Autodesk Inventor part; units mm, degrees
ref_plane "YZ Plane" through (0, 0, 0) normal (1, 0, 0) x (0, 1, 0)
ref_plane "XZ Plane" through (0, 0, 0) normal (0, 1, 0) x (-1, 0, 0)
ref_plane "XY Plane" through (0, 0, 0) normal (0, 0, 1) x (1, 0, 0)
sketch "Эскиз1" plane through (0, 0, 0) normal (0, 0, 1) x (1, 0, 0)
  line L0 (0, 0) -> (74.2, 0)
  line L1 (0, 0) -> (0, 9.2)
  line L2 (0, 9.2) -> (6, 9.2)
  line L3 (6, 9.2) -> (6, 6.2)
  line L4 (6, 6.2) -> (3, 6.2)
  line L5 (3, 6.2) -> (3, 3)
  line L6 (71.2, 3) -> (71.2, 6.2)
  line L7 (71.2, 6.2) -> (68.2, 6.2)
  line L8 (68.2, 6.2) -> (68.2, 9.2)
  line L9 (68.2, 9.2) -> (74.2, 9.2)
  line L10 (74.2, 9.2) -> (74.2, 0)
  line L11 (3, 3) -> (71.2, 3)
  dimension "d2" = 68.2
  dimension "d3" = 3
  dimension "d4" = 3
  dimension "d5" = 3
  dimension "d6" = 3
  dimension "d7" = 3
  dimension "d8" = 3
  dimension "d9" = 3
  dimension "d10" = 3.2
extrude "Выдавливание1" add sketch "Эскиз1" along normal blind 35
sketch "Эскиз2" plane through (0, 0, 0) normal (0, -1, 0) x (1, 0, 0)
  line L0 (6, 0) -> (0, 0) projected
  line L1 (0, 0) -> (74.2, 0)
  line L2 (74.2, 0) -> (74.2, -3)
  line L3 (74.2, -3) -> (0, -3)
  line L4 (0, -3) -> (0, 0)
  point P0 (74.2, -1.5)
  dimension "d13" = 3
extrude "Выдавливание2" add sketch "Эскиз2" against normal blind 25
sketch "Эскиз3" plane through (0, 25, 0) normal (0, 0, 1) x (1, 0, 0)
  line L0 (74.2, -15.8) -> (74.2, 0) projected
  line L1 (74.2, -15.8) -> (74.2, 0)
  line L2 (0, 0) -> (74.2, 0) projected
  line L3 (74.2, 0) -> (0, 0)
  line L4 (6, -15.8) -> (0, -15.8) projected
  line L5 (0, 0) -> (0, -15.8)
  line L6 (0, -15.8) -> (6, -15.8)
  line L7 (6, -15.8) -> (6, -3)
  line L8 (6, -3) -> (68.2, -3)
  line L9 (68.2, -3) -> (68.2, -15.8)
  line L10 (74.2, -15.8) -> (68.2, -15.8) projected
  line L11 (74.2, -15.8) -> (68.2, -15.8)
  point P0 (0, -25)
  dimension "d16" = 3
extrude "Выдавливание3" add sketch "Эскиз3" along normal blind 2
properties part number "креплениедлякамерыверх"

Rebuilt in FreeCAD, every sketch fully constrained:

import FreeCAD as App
import Part
import Sketcher

V = App.Vector

doc = App.newDocument("Part")
body = doc.addObject("PartDesign::Body", "Body")

sketch1 = body.newObject("Sketcher::SketchObject", "Sketch")
sketch1.AttachmentSupport = (doc.getObject("XY_Plane"), [""])
sketch1.MapMode = "FlatFace"
sketch1.addGeometry([
    Part.LineSegment(V(0, 9.2, 0), V(0, 0, 0)),
    Part.LineSegment(V(0, 0, 0), V(74.2, 0, 0)),
    Part.LineSegment(V(74.2, 0, 0), V(74.2, 9.2, 0)),
    Part.LineSegment(V(74.2, 9.2, 0), V(68.2, 9.2, 0)),
    Part.LineSegment(V(68.2, 9.2, 0), V(68.2, 6.2, 0)),
    Part.LineSegment(V(68.2, 6.2, 0), V(71.2, 6.2, 0)),
    Part.LineSegment(V(71.2, 6.2, 0), V(71.2, 3, 0)),
    Part.LineSegment(V(71.2, 3, 0), V(3, 3, 0)),
    Part.LineSegment(V(3, 3, 0), V(3, 6.2, 0)),
    Part.LineSegment(V(3, 6.2, 0), V(6, 6.2, 0)),
    Part.LineSegment(V(6, 6.2, 0), V(6, 9.2, 0)),
    Part.LineSegment(V(6, 9.2, 0), V(0, 9.2, 0)),
], False)
sketch1.addConstraint([
    Sketcher.Constraint("Coincident", 0, 2, 1, 1),
    Sketcher.Constraint("Coincident", 1, 2, 2, 1),
    Sketcher.Constraint("Coincident", 2, 2, 3, 1),
    Sketcher.Constraint("Coincident", 3, 2, 4, 1),
    Sketcher.Constraint("Coincident", 4, 2, 5, 1),
    Sketcher.Constraint("Coincident", 5, 2, 6, 1),
    Sketcher.Constraint("Coincident", 6, 2, 7, 1),
    Sketcher.Constraint("Coincident", 7, 2, 8, 1),
    Sketcher.Constraint("Coincident", 8, 2, 9, 1),
    Sketcher.Constraint("Coincident", 9, 2, 10, 1),
    Sketcher.Constraint("Coincident", 10, 2, 11, 1),
    Sketcher.Constraint("Coincident", 11, 2, 0, 1),
    Sketcher.Constraint("Vertical", 0),
    Sketcher.Constraint("Horizontal", 1),
    Sketcher.Constraint("Vertical", 2),
    Sketcher.Constraint("Horizontal", 3),
    Sketcher.Constraint("Vertical", 4),
    Sketcher.Constraint("Horizontal", 5),
    Sketcher.Constraint("Vertical", 6),
    Sketcher.Constraint("Horizontal", 7),
    Sketcher.Constraint("Vertical", 8),
    Sketcher.Constraint("Horizontal", 9),
    Sketcher.Constraint("Vertical", 10),
    Sketcher.Constraint("Horizontal", 11),
    Sketcher.Constraint("Coincident", 0, 2, -1, 1),
    Sketcher.Constraint("Horizontal", 5, 2, 8, 2),
    Sketcher.Constraint("Horizontal", 3, 2, 10, 2),
    Sketcher.Constraint("Equal", 5, 9),
    Sketcher.Constraint("Equal", 3, 11),
    Sketcher.Constraint("Equal", 9, 4),
    Sketcher.Constraint("DistanceX", 5, 1, 5, 2, 3.0),
    Sketcher.Constraint("DistanceX", 7, 2, 7, 1, 68.2),
    Sketcher.Constraint("DistanceY", 6, 2, 6, 1, 3.2),
    Sketcher.Constraint("DistanceY", -1, 1, 6, 2, 3.0),
    Sketcher.Constraint("DistanceX", -1, 1, 7, 2, 3.0),
])
pad1 = body.newObject("PartDesign::Pad", "Pad")
pad1.Profile = sketch1
pad1.Length = 35

sketch2 = body.newObject("Sketcher::SketchObject", "Sketch001")
sketch2.AttachmentSupport = (doc.getObject("XZ_Plane"), [""])
sketch2.MapMode = "FlatFace"
sketch2.addGeometry([
    Part.LineSegment(V(74.2, 0, 0), V(0, 0, 0)),
    Part.LineSegment(V(0, 0, 0), V(0, -3, 0)),
    Part.LineSegment(V(0, -3, 0), V(74.2, -3, 0)),
    Part.LineSegment(V(74.2, -3, 0), V(74.2, 0, 0)),
], False)
sketch2.addConstraint([
    Sketcher.Constraint("Coincident", 0, 2, 1, 1),
    Sketcher.Constraint("Coincident", 1, 2, 2, 1),
    Sketcher.Constraint("Coincident", 2, 2, 3, 1),
    Sketcher.Constraint("Coincident", 3, 2, 0, 1),
    Sketcher.Constraint("Horizontal", 0),
    Sketcher.Constraint("Vertical", 1),
    Sketcher.Constraint("Horizontal", 2),
    Sketcher.Constraint("Vertical", 3),
    Sketcher.Constraint("Coincident", 0, 2, -1, 1),
    Sketcher.Constraint("DistanceY", 1, 2, 1, 1, 3.0),
    Sketcher.Constraint("DistanceX", 0, 2, 0, 1, 74.2),
])
pad2 = body.newObject("PartDesign::Pad", "Pad001")
pad2.Profile = sketch2
pad2.Length = 25
pad2.Reversed = True

sketch3 = body.newObject("Sketcher::SketchObject", "Sketch002")
sketch3.AttachmentSupport = (doc.getObject("XY_Plane"), [""])
sketch3.MapMode = "FlatFace"
sketch3.addGeometry([
    Part.LineSegment(V(68, 9, 0), V(74, 9, 0)),
    Part.LineSegment(V(74, 9, 0), V(74, 25, 0)),
    Part.LineSegment(V(74, 25, 0), V(0, 25, 0)),
    Part.LineSegment(V(0, 25, 0), V(0, 9, 0)),
    Part.LineSegment(V(0, 9, 0), V(6, 9, 0)),
    Part.LineSegment(V(6, 9, 0), V(6, 22, 0)),
    Part.LineSegment(V(6, 22, 0), V(68, 22, 0)),
    Part.LineSegment(V(68, 22, 0), V(68, 9, 0)),
], False)
sketch3.addConstraint([
    Sketcher.Constraint("Coincident", 0, 2, 1, 1),
    Sketcher.Constraint("Coincident", 1, 2, 2, 1),
    Sketcher.Constraint("Coincident", 2, 2, 3, 1),
    Sketcher.Constraint("Coincident", 3, 2, 4, 1),
    Sketcher.Constraint("Coincident", 4, 2, 5, 1),
    Sketcher.Constraint("Coincident", 5, 2, 6, 1),
    Sketcher.Constraint("Coincident", 6, 2, 7, 1),
    Sketcher.Constraint("Coincident", 7, 2, 0, 1),
    Sketcher.Constraint("Horizontal", 0),
    Sketcher.Constraint("Vertical", 1),
    Sketcher.Constraint("Horizontal", 2),
    Sketcher.Constraint("Vertical", 3),
    Sketcher.Constraint("Horizontal", 4),
    Sketcher.Constraint("Vertical", 5),
    Sketcher.Constraint("Horizontal", 6),
    Sketcher.Constraint("Vertical", 7),
    Sketcher.Constraint("PointOnObject", 2, 2, -2),
    Sketcher.Constraint("Horizontal", 0, 2, 3, 2),
    Sketcher.Constraint("Equal", 0, 4),
    Sketcher.Constraint("DistanceY", 5, 2, 2, 2, 3.0),
    Sketcher.Constraint("DistanceX", 0, 1, 0, 2, 6.0),
    Sketcher.Constraint("DistanceX", 2, 2, 2, 1, 74.2),
    Sketcher.Constraint("DistanceY", 1, 1, 1, 2, 15.8),
    Sketcher.Constraint("DistanceY", -1, 1, 1, 2, 25.0),
])
pad3 = body.newObject("PartDesign::Pad", "Pad002")
pad3.Profile = sketch3
pad3.Length = 2

doc.recompute()
